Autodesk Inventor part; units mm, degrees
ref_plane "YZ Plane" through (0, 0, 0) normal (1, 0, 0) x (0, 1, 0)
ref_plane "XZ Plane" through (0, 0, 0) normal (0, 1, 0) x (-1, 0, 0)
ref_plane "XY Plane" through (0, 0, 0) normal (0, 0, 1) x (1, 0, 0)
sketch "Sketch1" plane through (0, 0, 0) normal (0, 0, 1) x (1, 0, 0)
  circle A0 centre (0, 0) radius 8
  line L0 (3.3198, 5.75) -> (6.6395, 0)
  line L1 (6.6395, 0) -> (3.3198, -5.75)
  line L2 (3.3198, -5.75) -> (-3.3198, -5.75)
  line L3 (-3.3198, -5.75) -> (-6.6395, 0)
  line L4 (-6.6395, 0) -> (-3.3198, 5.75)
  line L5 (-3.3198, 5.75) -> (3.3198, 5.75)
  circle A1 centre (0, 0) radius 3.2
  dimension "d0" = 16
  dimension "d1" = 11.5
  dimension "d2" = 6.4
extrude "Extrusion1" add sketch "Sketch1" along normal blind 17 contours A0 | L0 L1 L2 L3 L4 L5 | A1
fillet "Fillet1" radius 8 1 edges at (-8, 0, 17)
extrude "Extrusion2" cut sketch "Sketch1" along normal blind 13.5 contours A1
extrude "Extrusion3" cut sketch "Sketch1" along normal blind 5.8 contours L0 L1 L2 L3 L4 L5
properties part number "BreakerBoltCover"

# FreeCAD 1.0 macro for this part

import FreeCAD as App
import Part
import Sketcher

V = App.Vector
Q = App.Units.Quantity


def edges_at(feature, points):
    """Names of the edges that pass closest to the given points."""
    edges = feature.Shape.Edges
    near = lambda p: min(range(len(edges)), key=lambda i: edges[i].distToShape(Part.Vertex(*p))[0])
    return sorted({f"Edge{near(p) + 1}" for p in points})


def add_polygon(sketch, points):
    """Adds a closed chain of lines whose ends are joined by coincident constraints."""
    first, n = sketch.GeometryCount, len(points)
    for a, b in zip(points, points[1:] + points[:1]):
        sketch.addGeometry(Part.LineSegment(App.Vector(*a, 0), App.Vector(*b, 0)), False)
    for i in range(n):
        sketch.addConstraint(Sketcher.Constraint("Coincident", first + i, 2, first + (i + 1) % n, 1))

doc = App.newDocument("Part")
body = doc.addObject("PartDesign::Body", "Body")

# Sketch on XY plane
sketch1 = doc.addObject("Sketcher::SketchObject", "Sketch")
body.addObject(sketch1)
sketch1.AttachmentSupport = (doc.XY_Plane, [""])
sketch1.MapMode = "FlatFace"
sketch1.addGeometry(Part.Circle(V(0, 0, 0), V(0, 0, 1), 8), False)
sketch1.addConstraint(Sketcher.Constraint("Coincident", 0, 3, -1, 1))
sketch1.addConstraint(Sketcher.Constraint("Diameter", 0, Q("16 mm")))
pad1 = doc.addObject("PartDesign::Pad", "Pad")
body.addObject(pad1)
pad1.Profile = sketch1
pad1.Length = 17
doc.recompute()

fillet = doc.addObject("PartDesign::Fillet", "Fillet")
body.addObject(fillet)
fillet.Base = (pad1, edges_at(pad1, [(-8, 0, 17)]))
fillet.Radius = 8

# Sketch on XY plane
sketch2 = doc.addObject("Sketcher::SketchObject", "Sketch001")
body.addObject(sketch2)
sketch2.AttachmentSupport = (doc.XY_Plane, [""])
sketch2.MapMode = "FlatFace"
sketch2.addGeometry(Part.Circle(V(0, 0, 0), V(0, 0, 1), 3.2), False)
sketch2.addConstraint(Sketcher.Constraint("Coincident", 0, 3, -1, 1))
sketch2.addConstraint(Sketcher.Constraint("Diameter", 0, Q("6.4 mm")))
pocket1 = doc.addObject("PartDesign::Pocket", "Pocket")
body.addObject(pocket1)
pocket1.Profile = sketch2
pocket1.Length = 13.5
pocket1.Reversed = True

# Sketch on XY plane
sketch3 = doc.addObject("Sketcher::SketchObject", "Sketch002")
body.addObject(sketch3)
sketch3.AttachmentSupport = (doc.XY_Plane, [""])
sketch3.MapMode = "FlatFace"
add_polygon(sketch3, [(6.6, 0), (3.3, 5.8), (-3.3, 5.8), (-6.6, 0), (-3.3, -5.8), (3.3, -5.8)])  # lines 0-5
sketch3.addGeometry(Part.Circle(V(0, 0, 0), V(0, 0, 1), 3.2), False)  # 6
sketch3.addConstraint(Sketcher.Constraint("Horizontal", 1))
sketch3.addConstraint(Sketcher.Constraint("Horizontal", 4))
sketch3.addConstraint(Sketcher.Constraint("Coincident", 6, 3, -1, 1))
sketch3.addConstraint(Sketcher.Constraint("Symmetric", 0, 2, 3, 2, -1, 1))
sketch3.addConstraint(Sketcher.Constraint("Symmetric", 2, 2, 5, 2, -1, 1))
sketch3.addConstraint(Sketcher.Constraint("PointOnObject", 2, 2, -1))
sketch3.addConstraint(Sketcher.Constraint("Parallel", 2, 5))
sketch3.addConstraint(Sketcher.Constraint("Vertical", 1, 2, 3, 2))
sketch3.addConstraint(Sketcher.Constraint("Diameter", 6, Q("6.4 mm")))
sketch3.addConstraint(Sketcher.Constraint("DistanceY", 3, 2, 1, 2, Q("11.5 mm")))
sketch3.addConstraint(Sketcher.Constraint("Angle", 0, Q("119.9995 deg")))
sketch3.addConstraint(Sketcher.Constraint("DistanceX", 1, 2, 1, 1, Q("6.6396 mm")))
pocket2 = doc.addObject("PartDesign::Pocket", "Pocket001")
body.addObject(pocket2)
pocket2.Profile = sketch3
pocket2.Length = 5.8
pocket2.Reversed = True

doc.recompute()
